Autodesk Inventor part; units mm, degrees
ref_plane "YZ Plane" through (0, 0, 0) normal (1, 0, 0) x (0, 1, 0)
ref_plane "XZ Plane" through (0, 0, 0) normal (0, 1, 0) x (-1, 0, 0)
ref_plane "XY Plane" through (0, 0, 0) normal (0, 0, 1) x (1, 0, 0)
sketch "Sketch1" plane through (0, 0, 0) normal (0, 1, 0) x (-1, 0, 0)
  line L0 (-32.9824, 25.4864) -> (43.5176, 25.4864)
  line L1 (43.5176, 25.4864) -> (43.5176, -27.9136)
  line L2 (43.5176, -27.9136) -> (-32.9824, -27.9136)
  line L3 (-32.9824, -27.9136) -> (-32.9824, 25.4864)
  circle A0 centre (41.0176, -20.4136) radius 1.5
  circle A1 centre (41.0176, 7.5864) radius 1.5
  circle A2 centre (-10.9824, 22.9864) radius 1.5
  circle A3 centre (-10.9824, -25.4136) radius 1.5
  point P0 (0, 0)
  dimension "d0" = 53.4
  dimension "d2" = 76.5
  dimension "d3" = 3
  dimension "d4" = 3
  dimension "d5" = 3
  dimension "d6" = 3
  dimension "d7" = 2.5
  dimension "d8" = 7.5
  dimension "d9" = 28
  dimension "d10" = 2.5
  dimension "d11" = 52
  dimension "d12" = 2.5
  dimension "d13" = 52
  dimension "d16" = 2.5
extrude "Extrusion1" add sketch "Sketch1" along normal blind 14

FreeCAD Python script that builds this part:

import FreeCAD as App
import Part
import Sketcher

V = App.Vector


def add_polygon(sketch, points):
    """Adds a closed chain of lines whose ends are joined by coincident constraints."""
    first, n = sketch.GeometryCount, len(points)
    for a, b in zip(points, points[1:] + points[:1]):
        sketch.addGeometry(Part.LineSegment(App.Vector(*a, 0), App.Vector(*b, 0)), False)
    for i in range(n):
        sketch.addConstraint(Sketcher.Constraint("Coincident", first + i, 2, first + (i + 1) % n, 1))

doc = App.newDocument("Part")
body = doc.addObject("PartDesign::Body", "Body")

sketch1 = doc.addObject("Sketcher::SketchObject", "Sketch")
body.addObject(sketch1)
sketch1.AttachmentSupport = (doc.XZ_Plane, [""])
sketch1.MapMode = "FlatFace"
add_polygon(sketch1, [(-43.5, 25.5), (33, 25.5), (33, -27.9), (-43.5, -27.9)])
sketch1.addGeometry(Part.Circle(V(11, -25.4, 0), V(0, 0, 1), 1.5), False)
sketch1.addGeometry(Part.Circle(V(-41, -20.4, 0), V(0, 0, 1), 1.5), False)
sketch1.addGeometry(Part.Circle(V(11, 23, 0), V(0, 0, 1), 1.5), False)
sketch1.addGeometry(Part.Circle(V(-41, 7.6, 0), V(0, 0, 1), 1.5), False)
sketch1.addConstraint(Sketcher.Constraint("Horizontal", 0))
sketch1.addConstraint(Sketcher.Constraint("Vertical", 1))
sketch1.addConstraint(Sketcher.Constraint("Horizontal", 2))
sketch1.addConstraint(Sketcher.Constraint("Vertical", 3))
sketch1.addConstraint(Sketcher.Constraint("Equal", 4, 5))
sketch1.addConstraint(Sketcher.Constraint("Equal", 5, 6))
sketch1.addConstraint(Sketcher.Constraint("Equal", 6, 7))
sketch1.addConstraint(Sketcher.Constraint("Vertical", 4, 3, 6, 3))
sketch1.addConstraint(Sketcher.Constraint("Vertical", 5, 3, 7, 3))
sketch1.addConstraint(Sketcher.Constraint("Diameter", 4, 3.0))
sketch1.addConstraint(Sketcher.Constraint("DistanceX", 0, 1, 0, 2, 76.5))
sketch1.addConstraint(Sketcher.Constraint("DistanceY", 1, 2, 1, 1, 53.4))
sketch1.addConstraint(Sketcher.Constraint("DistanceX", 5, 3, 4, 3, 52.0))
sketch1.addConstraint(Sketcher.Constraint("DistanceY", 5, 3, 7, 3, 28.0))
sketch1.addConstraint(Sketcher.Constraint("DistanceY", 6, 3, 0, 2, 2.5))
sketch1.addConstraint(Sketcher.Constraint("DistanceY", 1, 2, 4, 3, 2.5))
sketch1.addConstraint(Sketcher.Constraint("DistanceY", 1, 2, 5, 3, 7.5))
sketch1.addConstraint(Sketcher.Constraint("DistanceX", 2, 2, 5, 3, 2.5))
sketch1.addConstraint(Sketcher.Constraint("DistanceX", -1, 1, 4, 3, 10.9824))
sketch1.addConstraint(Sketcher.Constraint("DistanceY", 4, 3, -1, 1, 25.4136))
pad1 = doc.addObject("PartDesign::Pad", "Pad")
body.addObject(pad1)
pad1.Profile = sketch1
pad1.Length = 14
pad1.Reversed = True

doc.recompute()
